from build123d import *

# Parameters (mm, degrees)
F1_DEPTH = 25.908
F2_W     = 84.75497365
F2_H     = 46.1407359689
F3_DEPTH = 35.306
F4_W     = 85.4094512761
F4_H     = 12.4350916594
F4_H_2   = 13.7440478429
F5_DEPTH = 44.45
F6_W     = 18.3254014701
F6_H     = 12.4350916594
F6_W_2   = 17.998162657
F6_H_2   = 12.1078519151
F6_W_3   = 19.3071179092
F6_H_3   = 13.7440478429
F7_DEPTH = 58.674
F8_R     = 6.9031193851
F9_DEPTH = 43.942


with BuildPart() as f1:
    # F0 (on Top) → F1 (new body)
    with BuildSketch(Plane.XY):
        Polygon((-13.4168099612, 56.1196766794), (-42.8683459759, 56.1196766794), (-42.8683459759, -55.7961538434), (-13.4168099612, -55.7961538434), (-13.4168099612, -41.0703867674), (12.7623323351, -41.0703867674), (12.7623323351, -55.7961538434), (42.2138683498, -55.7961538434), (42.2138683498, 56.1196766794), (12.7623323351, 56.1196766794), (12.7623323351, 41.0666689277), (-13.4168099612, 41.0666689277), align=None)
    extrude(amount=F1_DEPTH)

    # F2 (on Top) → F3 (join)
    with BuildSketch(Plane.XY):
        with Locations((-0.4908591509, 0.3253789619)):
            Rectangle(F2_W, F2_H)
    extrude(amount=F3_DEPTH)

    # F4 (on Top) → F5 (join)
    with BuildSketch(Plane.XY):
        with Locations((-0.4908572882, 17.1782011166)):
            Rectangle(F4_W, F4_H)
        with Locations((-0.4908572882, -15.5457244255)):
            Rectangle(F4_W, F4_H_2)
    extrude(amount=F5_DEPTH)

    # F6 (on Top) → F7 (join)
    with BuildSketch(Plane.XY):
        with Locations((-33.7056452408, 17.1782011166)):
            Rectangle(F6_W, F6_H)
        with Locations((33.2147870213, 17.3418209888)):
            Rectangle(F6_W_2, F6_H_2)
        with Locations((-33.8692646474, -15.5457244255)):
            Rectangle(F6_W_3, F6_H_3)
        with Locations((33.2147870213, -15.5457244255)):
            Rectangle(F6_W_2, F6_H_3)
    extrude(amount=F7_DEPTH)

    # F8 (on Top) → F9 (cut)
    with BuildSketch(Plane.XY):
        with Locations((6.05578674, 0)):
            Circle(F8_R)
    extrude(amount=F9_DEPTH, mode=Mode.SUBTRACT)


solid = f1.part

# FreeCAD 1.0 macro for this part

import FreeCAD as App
import Part
import Sketcher
from FreeCAD import Vector
Q = App.Units.Quantity


def add_polygon(sketch, points):
    """Adds a closed chain of lines whose ends are joined by coincident constraints."""
    first, n = sketch.GeometryCount, len(points)
    for a, b in zip(points, points[1:] + points[:1]):
        sketch.addGeometry(Part.LineSegment(App.Vector(*a, 0), App.Vector(*b, 0)), False)
    for i in range(n):
        sketch.addConstraint(Sketcher.Constraint("Coincident", first + i, 2, first + (i + 1) % n, 1))

doc = App.newDocument("Part")
body = doc.addObject("PartDesign::Body", "Body")

sketch1 = body.newObject("Sketcher::SketchObject", "Sketch")
sketch1.AttachmentSupport = (doc.getObject("XY_Plane"), [""])
sketch1.MapMode = "FlatFace"
add_polygon(sketch1, [(-13.41681, 56.119677), (-42.868346, 56.119677), (-42.868346, -55.796154), (-13.41681, -55.796154), (-13.41681, -41.070387), (12.762332, -41.070387), (12.762332, -55.796154), (42.213868, -55.796154), (42.213868, 56.119677), (12.762332, 56.119677), (12.762332, 41.066669), (-13.41681, 41.066669)])
sketch1.addConstraint(Sketcher.Constraint("Horizontal", 0))
sketch1.addConstraint(Sketcher.Constraint("Vertical", 1))
sketch1.addConstraint(Sketcher.Constraint("Horizontal", 2))
sketch1.addConstraint(Sketcher.Constraint("Vertical", 3))
sketch1.addConstraint(Sketcher.Constraint("Horizontal", 4))
sketch1.addConstraint(Sketcher.Constraint("Vertical", 5))
sketch1.addConstraint(Sketcher.Constraint("Horizontal", 6))
sketch1.addConstraint(Sketcher.Constraint("Vertical", 7))
sketch1.addConstraint(Sketcher.Constraint("Horizontal", 8))
sketch1.addConstraint(Sketcher.Constraint("Vertical", 9))
sketch1.addConstraint(Sketcher.Constraint("Horizontal", 10))
sketch1.addConstraint(Sketcher.Constraint("Vertical", 11))
sketch1.addConstraint(Sketcher.Constraint("Horizontal", 2, 2, 5, 2))
sketch1.addConstraint(Sketcher.Constraint("Horizontal", 0, 2, 7, 2))
sketch1.addConstraint(Sketcher.Constraint("Vertical", 5, 2, 8, 2))
sketch1.addConstraint(Sketcher.Constraint("Vertical", 3, 2, 10, 2))
sketch1.addConstraint(Sketcher.Constraint("Equal", 2, 6))
sketch1.addConstraint(Sketcher.Constraint("DistanceY", 1, 2, 1, 1, 111.915831))
sketch1.addConstraint(Sketcher.Constraint("DistanceX", 0, 2, 0, 1, 29.451536))
sketch1.addConstraint(Sketcher.Constraint("DistanceX", 4, 1, 4, 2, 26.179142))
sketch1.addConstraint(Sketcher.Constraint("DistanceY", 3, 1, 3, 2, 14.725767))
sketch1.addConstraint(Sketcher.Constraint("DistanceY", 9, 2, 9, 1, 15.053008))
sketch1.addConstraint(Sketcher.Constraint("DistanceX", 2, 2, -1, 1, 13.41681))
sketch1.addConstraint(Sketcher.Constraint("DistanceY", -1, 1, 9, 2, 41.066669))
pad1 = body.newObject("PartDesign::Pad", "Pad")
pad1.Profile = sketch1
pad1.Length = Q("1.02 in")

sketch2 = body.newObject("Sketcher::SketchObject", "Sketch001")
sketch2.AttachmentSupport = (doc.getObject("XY_Plane"), [""])
sketch2.MapMode = "FlatFace"
add_polygon(sketch2, [(-42.868346, 23.395747), (-42.868346, -22.744989), (41.886628, -22.744989), (41.886628, 23.395747)])
sketch2.addConstraint(Sketcher.Constraint("Vertical", 0))
sketch2.addConstraint(Sketcher.Constraint("Horizontal", 1))
sketch2.addConstraint(Sketcher.Constraint("Vertical", 2))
sketch2.addConstraint(Sketcher.Constraint("Horizontal", 3))
sketch2.addConstraint(Sketcher.Constraint("DistanceX", 1, 1, 1, 2, 84.754974))
sketch2.addConstraint(Sketcher.Constraint("DistanceY", 0, 2, 0, 1, 46.140736))
sketch2.addConstraint(Sketcher.Constraint("DistanceY", 0, 2, -1, 1, 22.744989))
sketch2.addConstraint(Sketcher.Constraint("DistanceX", 0, 2, -1, 1, 42.868346))
pad2 = body.newObject("PartDesign::Pad", "Pad001")
pad2.Profile = sketch2
pad2.Length = Q("1.39 in")

sketch3 = body.newObject("Sketcher::SketchObject", "Sketch002")
sketch3.AttachmentSupport = (doc.getObject("XY_Plane"), [""])
sketch3.MapMode = "FlatFace"
add_polygon(sketch3, [(-43.195583, 23.395747), (-43.195583, 10.960655), (42.213868, 10.960655), (42.213868, 23.395747)])
add_polygon(sketch3, [(-43.195583, -8.673701), (-43.195583, -22.417748), (42.213868, -22.417748), (42.213868, -8.673701)])
sketch3.addConstraint(Sketcher.Constraint("Vertical", 0))
sketch3.addConstraint(Sketcher.Constraint("Horizontal", 1))
sketch3.addConstraint(Sketcher.Constraint("Vertical", 2))
sketch3.addConstraint(Sketcher.Constraint("Horizontal", 3))
sketch3.addConstraint(Sketcher.Constraint("Vertical", 4))
sketch3.addConstraint(Sketcher.Constraint("Horizontal", 5))
sketch3.addConstraint(Sketcher.Constraint("Vertical", 6))
sketch3.addConstraint(Sketcher.Constraint("Horizontal", 7))
sketch3.addConstraint(Sketcher.Constraint("Vertical", 3, 2, 4, 2))
sketch3.addConstraint(Sketcher.Constraint("Vertical", 2, 2, 5, 2))
sketch3.addConstraint(Sketcher.Constraint("DistanceX", 1, 1, 1, 2, 85.409451))
sketch3.addConstraint(Sketcher.Constraint("DistanceY", 0, 2, 0, 1, 12.435092))
sketch3.addConstraint(Sketcher.Constraint("DistanceY", 6, 2, -1, 1, 8.673701))
sketch3.addConstraint(Sketcher.Constraint("DistanceY", 4, 2, 4, 1, 13.744048))
sketch3.addConstraint(Sketcher.Constraint("DistanceX", -1, 1, 1, 2, 42.213868))
sketch3.addConstraint(Sketcher.Constraint("DistanceY", -1, 1, 0, 2, 10.960655))
pad3 = body.newObject("PartDesign::Pad", "Pad002")
pad3.Profile = sketch3
pad3.Length = Q("1.75 in")

sketch4 = body.newObject("Sketcher::SketchObject", "Sketch003")
sketch4.AttachmentSupport = (doc.getObject("XY_Plane"), [""])
sketch4.MapMode = "FlatFace"
add_polygon(sketch4, [(-42.868346, 23.395747), (-42.868346, 10.960655), (-24.542945, 10.960655), (-24.542945, 23.395747)])
add_polygon(sketch4, [(24.215706, 23.395747), (24.215706, 11.287895), (42.213868, 11.287895), (42.213868, 23.395747)])
add_polygon(sketch4, [(-43.522824, -8.673701), (-43.522824, -22.417748), (-24.215706, -22.417748), (-24.215706, -8.673701)])
add_polygon(sketch4, [(24.215706, -8.673701), (24.215706, -22.417748), (42.213868, -22.417748), (42.213868, -8.673701)])
sketch4.addConstraint(Sketcher.Constraint("Vertical", 0))
sketch4.addConstraint(Sketcher.Constraint("Horizontal", 1))
sketch4.addConstraint(Sketcher.Constraint("Vertical", 2))
sketch4.addConstraint(Sketcher.Constraint("Horizontal", 3))
sketch4.addConstraint(Sketcher.Constraint("Vertical", 4))
sketch4.addConstraint(Sketcher.Constraint("Horizontal", 5))
sketch4.addConstraint(Sketcher.Constraint("Vertical", 6))
sketch4.addConstraint(Sketcher.Constraint("Horizontal", 7))
sketch4.addConstraint(Sketcher.Constraint("Vertical", 8))
sketch4.addConstraint(Sketcher.Constraint("Horizontal", 9))
sketch4.addConstraint(Sketcher.Constraint("Vertical", 10))
sketch4.addConstraint(Sketcher.Constraint("Horizontal", 11))
sketch4.addConstraint(Sketcher.Constraint("Vertical", 12))
sketch4.addConstraint(Sketcher.Constraint("Horizontal", 13))
sketch4.addConstraint(Sketcher.Constraint("Vertical", 14))
sketch4.addConstraint(Sketcher.Constraint("Horizontal", 15))
sketch4.addConstraint(Sketcher.Constraint("Symmetric", 9, 2, 12, 2, -2))
sketch4.addConstraint(Sketcher.Constraint("Horizontal", 3, 2, 6, 2))
sketch4.addConstraint(Sketcher.Constraint("Horizontal", 11, 2, 14, 2))
sketch4.addConstraint(Sketcher.Constraint("Vertical", 7, 2, 12, 2))
sketch4.addConstraint(Sketcher.Constraint("Vertical", 6, 2, 13, 2))
sketch4.addConstraint(Sketcher.Constraint("DistanceX", 1, 1, 1, 2, 18.325401))
sketch4.addConstraint(Sketcher.Constraint("DistanceY", 0, 2, 0, 1, 12.435092))
sketch4.addConstraint(Sketcher.Constraint("DistanceY", 4, 2, 4, 1, 12.107852))
sketch4.addConstraint(Sketcher.Constraint("DistanceY", 10, 2, -1, 1, 8.673701))
sketch4.addConstraint(Sketcher.Constraint("DistanceX", 5, 1, 5, 2, 17.998163))
sketch4.addConstraint(Sketcher.Constraint("DistanceX", 9, 1, 9, 2, 19.307118))
sketch4.addConstraint(Sketcher.Constraint("DistanceY", 8, 2, 8, 1, 13.744048))
sketch4.addConstraint(Sketcher.Constraint("DistanceX", -1, 1, 5, 2, 42.213868))
sketch4.addConstraint(Sketcher.Constraint("DistanceX", 1, 2, 4, 2, 48.75865))
sketch4.addConstraint(Sketcher.Constraint("DistanceY", -1, 1, 0, 2, 10.960655))
pad4 = body.newObject("PartDesign::Pad", "Pad003")
pad4.Profile = sketch4
pad4.Length = Q("2.31 in")

sketch5 = body.newObject("Sketcher::SketchObject", "Sketch004")
sketch5.AttachmentSupport = (doc.getObject("XY_Plane"), [""])
sketch5.MapMode = "FlatFace"
sketch5.addGeometry(Part.Circle(Vector(6.055787, 0, 0), Vector(0, 0, 1), 6.903119), False)
sketch5.addConstraint(Sketcher.Constraint("PointOnObject", 0, 3, -1))
sketch5.addConstraint(Sketcher.Constraint("Diameter", 0, 13.806239))
sketch5.addConstraint(Sketcher.Constraint("DistanceX", -1, 1, 0, 3, 6.055787))
pocket1 = body.newObject("PartDesign::Pocket", "Pocket")
pocket1.Profile = sketch5
pocket1.Length = Q("1.73 in")
pocket1.Reversed = True

doc.recompute()
